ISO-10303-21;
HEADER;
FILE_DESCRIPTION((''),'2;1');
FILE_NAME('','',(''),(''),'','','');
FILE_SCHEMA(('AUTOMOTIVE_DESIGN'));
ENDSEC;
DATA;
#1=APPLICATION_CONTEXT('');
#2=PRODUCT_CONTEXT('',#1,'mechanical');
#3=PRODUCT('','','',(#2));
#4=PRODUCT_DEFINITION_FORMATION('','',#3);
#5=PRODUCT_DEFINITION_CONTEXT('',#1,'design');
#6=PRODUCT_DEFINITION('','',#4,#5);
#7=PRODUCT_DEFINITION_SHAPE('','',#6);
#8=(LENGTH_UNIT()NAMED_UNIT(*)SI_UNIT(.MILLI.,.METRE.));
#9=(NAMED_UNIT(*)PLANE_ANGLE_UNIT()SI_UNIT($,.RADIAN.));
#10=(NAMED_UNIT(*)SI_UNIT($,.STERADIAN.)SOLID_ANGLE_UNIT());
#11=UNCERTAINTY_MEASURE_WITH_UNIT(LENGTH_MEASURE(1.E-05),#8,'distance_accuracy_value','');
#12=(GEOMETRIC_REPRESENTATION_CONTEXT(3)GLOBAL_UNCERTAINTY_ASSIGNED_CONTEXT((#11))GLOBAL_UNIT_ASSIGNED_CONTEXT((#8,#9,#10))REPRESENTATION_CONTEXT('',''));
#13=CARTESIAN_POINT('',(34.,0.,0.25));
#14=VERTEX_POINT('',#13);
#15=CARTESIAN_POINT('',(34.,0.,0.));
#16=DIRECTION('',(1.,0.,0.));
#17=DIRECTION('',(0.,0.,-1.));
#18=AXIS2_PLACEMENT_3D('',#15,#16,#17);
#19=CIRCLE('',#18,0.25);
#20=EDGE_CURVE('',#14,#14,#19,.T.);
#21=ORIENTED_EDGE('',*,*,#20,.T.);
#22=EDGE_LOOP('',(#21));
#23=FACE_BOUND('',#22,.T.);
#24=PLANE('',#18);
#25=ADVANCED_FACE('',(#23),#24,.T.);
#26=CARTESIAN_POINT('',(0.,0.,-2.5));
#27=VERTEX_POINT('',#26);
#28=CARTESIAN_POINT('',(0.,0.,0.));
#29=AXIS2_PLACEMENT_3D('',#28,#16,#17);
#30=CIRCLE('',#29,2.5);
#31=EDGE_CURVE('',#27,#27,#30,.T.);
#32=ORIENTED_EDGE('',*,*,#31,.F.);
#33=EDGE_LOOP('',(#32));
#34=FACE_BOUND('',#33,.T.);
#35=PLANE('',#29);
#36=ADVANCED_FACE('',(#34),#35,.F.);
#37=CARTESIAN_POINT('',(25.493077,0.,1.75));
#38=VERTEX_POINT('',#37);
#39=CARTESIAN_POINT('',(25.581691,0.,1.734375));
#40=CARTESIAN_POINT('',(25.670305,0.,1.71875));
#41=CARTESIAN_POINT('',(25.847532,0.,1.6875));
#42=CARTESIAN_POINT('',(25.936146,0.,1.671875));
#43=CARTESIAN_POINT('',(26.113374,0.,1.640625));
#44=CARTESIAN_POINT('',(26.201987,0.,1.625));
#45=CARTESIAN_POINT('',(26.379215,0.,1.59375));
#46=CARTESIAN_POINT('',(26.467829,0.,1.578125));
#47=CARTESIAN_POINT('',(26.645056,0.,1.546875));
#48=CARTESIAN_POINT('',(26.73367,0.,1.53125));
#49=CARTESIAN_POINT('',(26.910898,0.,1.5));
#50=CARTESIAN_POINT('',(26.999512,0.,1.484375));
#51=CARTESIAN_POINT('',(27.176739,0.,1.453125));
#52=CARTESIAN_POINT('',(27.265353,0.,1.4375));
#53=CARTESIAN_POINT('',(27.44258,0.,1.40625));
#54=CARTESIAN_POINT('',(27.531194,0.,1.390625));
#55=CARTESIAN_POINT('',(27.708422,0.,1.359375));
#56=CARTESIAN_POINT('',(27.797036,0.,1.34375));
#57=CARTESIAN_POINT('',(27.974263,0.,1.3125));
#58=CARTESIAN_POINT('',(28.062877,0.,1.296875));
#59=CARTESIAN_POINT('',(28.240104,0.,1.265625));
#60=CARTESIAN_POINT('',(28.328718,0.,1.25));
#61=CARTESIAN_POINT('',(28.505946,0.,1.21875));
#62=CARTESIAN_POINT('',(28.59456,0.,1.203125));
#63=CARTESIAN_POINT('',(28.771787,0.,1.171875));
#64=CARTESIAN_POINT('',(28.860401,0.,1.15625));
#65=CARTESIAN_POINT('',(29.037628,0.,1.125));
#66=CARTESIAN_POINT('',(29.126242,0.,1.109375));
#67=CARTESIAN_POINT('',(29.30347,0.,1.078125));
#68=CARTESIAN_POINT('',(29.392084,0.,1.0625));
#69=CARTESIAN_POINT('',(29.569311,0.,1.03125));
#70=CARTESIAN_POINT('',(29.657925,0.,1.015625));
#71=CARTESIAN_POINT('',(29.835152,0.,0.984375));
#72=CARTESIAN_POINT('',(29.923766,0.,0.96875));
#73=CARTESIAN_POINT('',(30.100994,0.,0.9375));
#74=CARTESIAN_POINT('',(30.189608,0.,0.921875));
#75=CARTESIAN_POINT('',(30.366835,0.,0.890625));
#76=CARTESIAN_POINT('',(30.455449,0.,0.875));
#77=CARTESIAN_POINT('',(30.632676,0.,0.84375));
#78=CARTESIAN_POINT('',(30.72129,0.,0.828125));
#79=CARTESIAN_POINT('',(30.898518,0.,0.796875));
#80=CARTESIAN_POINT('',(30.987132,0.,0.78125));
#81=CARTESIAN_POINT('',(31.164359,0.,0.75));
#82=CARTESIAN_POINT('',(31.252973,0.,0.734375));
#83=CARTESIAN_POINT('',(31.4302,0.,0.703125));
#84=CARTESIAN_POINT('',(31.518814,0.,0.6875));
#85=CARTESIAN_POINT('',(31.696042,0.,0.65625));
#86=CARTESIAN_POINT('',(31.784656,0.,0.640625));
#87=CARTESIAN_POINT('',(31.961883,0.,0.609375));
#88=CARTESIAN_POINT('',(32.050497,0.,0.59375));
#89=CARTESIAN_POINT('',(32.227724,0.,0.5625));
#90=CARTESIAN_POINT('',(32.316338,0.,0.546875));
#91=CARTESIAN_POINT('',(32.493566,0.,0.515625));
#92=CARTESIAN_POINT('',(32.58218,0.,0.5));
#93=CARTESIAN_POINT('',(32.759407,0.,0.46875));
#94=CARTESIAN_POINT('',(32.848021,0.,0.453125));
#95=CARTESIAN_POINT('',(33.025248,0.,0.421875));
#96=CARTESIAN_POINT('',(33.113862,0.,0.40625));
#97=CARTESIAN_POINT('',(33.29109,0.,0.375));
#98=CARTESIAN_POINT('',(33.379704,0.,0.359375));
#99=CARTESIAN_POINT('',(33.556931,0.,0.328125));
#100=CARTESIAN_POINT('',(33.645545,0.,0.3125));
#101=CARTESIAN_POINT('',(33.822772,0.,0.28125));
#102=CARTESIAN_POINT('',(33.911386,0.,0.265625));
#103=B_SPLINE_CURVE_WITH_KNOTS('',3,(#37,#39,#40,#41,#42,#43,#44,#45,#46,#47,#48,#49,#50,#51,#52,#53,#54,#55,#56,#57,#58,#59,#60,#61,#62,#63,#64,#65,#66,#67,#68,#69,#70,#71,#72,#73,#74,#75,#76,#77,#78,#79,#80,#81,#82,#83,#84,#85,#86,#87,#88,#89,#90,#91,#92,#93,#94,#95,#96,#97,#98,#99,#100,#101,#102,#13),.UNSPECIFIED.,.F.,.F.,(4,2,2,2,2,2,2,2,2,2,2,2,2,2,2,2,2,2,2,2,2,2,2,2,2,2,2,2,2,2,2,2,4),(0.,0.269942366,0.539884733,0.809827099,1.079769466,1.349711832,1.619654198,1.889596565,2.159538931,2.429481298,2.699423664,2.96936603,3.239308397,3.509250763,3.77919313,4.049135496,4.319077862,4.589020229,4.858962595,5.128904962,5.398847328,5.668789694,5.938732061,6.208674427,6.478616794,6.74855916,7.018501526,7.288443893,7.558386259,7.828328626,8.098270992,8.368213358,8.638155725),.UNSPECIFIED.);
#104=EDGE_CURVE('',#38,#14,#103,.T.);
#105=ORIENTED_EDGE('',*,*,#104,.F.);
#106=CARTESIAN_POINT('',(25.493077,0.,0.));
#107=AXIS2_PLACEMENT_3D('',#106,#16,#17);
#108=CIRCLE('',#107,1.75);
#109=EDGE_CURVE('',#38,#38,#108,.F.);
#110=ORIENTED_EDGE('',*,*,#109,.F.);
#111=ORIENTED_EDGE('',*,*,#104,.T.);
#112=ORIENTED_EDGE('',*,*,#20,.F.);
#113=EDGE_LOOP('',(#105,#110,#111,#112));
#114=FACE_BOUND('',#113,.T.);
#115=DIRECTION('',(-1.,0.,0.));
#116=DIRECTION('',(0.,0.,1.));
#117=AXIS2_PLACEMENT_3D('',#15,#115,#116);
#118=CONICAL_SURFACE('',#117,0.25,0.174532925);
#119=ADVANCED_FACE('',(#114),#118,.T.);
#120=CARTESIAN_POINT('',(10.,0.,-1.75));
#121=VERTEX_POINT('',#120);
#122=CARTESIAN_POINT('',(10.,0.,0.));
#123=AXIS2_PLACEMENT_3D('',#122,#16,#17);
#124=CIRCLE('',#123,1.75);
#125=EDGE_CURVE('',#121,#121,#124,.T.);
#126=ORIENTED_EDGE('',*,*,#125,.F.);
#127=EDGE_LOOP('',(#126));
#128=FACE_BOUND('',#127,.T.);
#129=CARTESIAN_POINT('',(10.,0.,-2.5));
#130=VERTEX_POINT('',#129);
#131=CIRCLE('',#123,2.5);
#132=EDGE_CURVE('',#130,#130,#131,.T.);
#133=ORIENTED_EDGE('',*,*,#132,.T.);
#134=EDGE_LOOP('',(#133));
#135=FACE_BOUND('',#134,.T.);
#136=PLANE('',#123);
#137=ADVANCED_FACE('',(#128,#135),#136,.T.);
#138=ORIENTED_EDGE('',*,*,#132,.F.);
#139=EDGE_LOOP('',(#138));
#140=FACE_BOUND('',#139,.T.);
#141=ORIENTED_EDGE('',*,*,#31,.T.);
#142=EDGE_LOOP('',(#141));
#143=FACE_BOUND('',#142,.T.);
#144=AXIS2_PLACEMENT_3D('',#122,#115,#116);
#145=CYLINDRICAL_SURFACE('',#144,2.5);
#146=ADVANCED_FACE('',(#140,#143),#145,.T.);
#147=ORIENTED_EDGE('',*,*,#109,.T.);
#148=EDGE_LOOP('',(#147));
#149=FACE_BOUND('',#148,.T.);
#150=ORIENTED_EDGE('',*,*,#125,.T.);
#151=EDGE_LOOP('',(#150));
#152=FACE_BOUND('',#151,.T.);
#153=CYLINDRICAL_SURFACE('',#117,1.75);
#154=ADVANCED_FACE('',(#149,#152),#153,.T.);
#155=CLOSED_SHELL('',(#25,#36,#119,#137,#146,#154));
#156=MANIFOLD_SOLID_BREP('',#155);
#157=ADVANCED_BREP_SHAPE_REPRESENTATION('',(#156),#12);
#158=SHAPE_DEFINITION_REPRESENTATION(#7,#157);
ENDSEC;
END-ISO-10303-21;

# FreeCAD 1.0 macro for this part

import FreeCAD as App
import Part
import Sketcher
from FreeCAD import Vector
Q = App.Units.Quantity


def edges_at(feature, points):
    """Names of the edges that pass closest to the given points."""
    edges = feature.Shape.Edges
    near = lambda p: min(range(len(edges)), key=lambda i: edges[i].distToShape(Part.Vertex(*p))[0])
    return sorted({f"Edge{near(p) + 1}" for p in points})

doc = App.newDocument("Part")
params = doc.addObject("Spreadsheet::Sheet", "Params")
for row, (alias, value) in enumerate([
    ("sketch1_diameter", "5 mm"),
    ("pad1_length", "10 mm"),
    ("sketch2_diameter", "3.5 mm"),
    ("pad2_length", "24 mm"),
    ("chamfer_size", "1.5 mm"),
    ("chamfer_size2", "8.506923 mm"),
], start=1):
    params.set(f"A{row}", alias)
    params.set(f"B{row}", "=" + value)
    params.setAlias(f"B{row}", alias)

body = doc.addObject("PartDesign::Body", "Body")

sketch1 = doc.addObject("Sketcher::SketchObject", "Sketch")
body.addObject(sketch1)
sketch1.AttachmentSupport = (doc.YZ_Plane, [""])
sketch1.MapMode = "FlatFace"
sketch1.addGeometry(Part.Circle(Vector(0, 0, 0), Vector(0, 0, 1), 2.5), False)
sketch1.addConstraint([
    Sketcher.Constraint("Coincident", 0, 3, -1, 1),
    Sketcher.Constraint("Diameter", 0, Q("5 mm")),
])
sketch1.setExpression("Constraints[1]", "Params.sketch1_diameter")
pad1 = doc.addObject("PartDesign::Pad", "Pad")
body.addObject(pad1)
pad1.Profile = sketch1
pad1.setExpression("Length", "Params.pad1_length")

sketch2 = doc.addObject("Sketcher::SketchObject", "Sketch001")
body.addObject(sketch2)
sketch2.AttachmentSupport = (doc.YZ_Plane, [""])
sketch2.MapMode = "FlatFace"
sketch2.AttachmentOffset = App.Placement(Vector(0, 0, 10), App.Rotation())
sketch2.addGeometry(Part.Circle(Vector(0, 0, 0), Vector(0, 0, 1), 1.8), False)
sketch2.addConstraint([
    Sketcher.Constraint("Coincident", 0, 3, -1, 1),
    Sketcher.Constraint("Diameter", 0, Q("3.5 mm")),
])
sketch2.setExpression("Constraints[1]", "Params.sketch2_diameter")
pad2 = doc.addObject("PartDesign::Pad", "Pad001")
body.addObject(pad2)
pad2.Profile = sketch2
pad2.setExpression("Length", "Params.pad2_length")
doc.recompute()

chamfer = doc.addObject("PartDesign::Chamfer", "Chamfer")
body.addObject(chamfer)
chamfer.Base = (pad2, edges_at(pad2, [(34, 0, 1.75)]))
chamfer.ChamferType = "Two distances"
chamfer.setExpression("Size", "Params.chamfer_size")
chamfer.setExpression("Size2", "Params.chamfer_size2")
chamfer.FlipDirection = True

doc.recompute()
